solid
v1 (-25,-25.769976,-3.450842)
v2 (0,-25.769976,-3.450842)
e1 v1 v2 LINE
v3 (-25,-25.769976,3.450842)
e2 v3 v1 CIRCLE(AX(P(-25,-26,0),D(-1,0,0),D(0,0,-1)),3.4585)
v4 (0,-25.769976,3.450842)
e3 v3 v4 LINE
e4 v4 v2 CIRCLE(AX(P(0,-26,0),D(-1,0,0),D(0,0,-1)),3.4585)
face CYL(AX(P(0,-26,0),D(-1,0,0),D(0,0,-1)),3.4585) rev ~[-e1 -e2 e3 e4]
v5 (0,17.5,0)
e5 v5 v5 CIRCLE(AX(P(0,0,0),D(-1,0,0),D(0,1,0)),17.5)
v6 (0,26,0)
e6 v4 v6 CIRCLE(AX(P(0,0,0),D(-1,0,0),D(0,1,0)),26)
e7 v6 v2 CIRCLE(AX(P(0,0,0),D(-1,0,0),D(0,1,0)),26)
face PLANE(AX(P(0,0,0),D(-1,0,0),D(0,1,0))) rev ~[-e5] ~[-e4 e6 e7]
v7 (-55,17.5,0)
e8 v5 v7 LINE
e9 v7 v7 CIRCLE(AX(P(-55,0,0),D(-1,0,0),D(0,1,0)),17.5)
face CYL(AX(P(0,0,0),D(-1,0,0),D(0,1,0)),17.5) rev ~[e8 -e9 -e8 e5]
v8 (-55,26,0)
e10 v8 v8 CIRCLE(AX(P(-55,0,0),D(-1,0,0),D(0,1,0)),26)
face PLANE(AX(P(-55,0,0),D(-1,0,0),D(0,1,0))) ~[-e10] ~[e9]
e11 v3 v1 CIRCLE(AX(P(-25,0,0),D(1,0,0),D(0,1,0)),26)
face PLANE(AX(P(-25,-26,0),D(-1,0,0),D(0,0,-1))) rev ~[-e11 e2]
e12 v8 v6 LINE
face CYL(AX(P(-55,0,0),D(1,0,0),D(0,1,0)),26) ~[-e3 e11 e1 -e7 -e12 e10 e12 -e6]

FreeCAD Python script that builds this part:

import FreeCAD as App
import Part
import Sketcher

doc = App.newDocument("Part")
body = doc.addObject("PartDesign::Body", "Body")

sketch1 = doc.addObject("Sketcher::SketchObject", "Sketch")
body.addObject(sketch1)
sketch1.AttachmentSupport = (doc.XY_Plane, [""])
sketch1.MapMode = "FlatFace"
sketch1.addGeometry([
    Part.LineSegment(App.Vector(0, 26, 0), App.Vector(-55, 26, 0)),
    Part.LineSegment(App.Vector(-55, 26, 0), App.Vector(-55, 18, 0)),
    Part.LineSegment(App.Vector(-55, 18, 0), App.Vector(0, 18, 0)),
    Part.LineSegment(App.Vector(0, 18, 0), App.Vector(0, 26, 0)),
], False)
sketch1.addConstraint([
    Sketcher.Constraint("Coincident", 0, 2, 1, 1),
    Sketcher.Constraint("Coincident", 1, 2, 2, 1),
    Sketcher.Constraint("Coincident", 2, 2, 3, 1),
    Sketcher.Constraint("Coincident", 3, 2, 0, 1),
    Sketcher.Constraint("Horizontal", 0),
    Sketcher.Constraint("Vertical", 1),
    Sketcher.Constraint("Horizontal", 2),
    Sketcher.Constraint("Vertical", 3),
    Sketcher.Constraint("PointOnObject", 2, 2, -2),
    Sketcher.Constraint("DistanceX", 0, 2, 0, 1, 55.0),
    Sketcher.Constraint("DistanceY", 1, 2, 1, 1, 8.5),
    Sketcher.Constraint("DistanceY", -1, 1, 0, 2, 26.0),
])
revolution = doc.addObject("PartDesign::Revolution", "Revolution")
body.addObject(revolution)
revolution.Profile = sketch1
revolution.ReferenceAxis = (sketch1, ["H_Axis"])
revolution.Angle = 360

sketch2 = doc.addObject("Sketcher::SketchObject", "Sketch001")
body.addObject(sketch2)
sketch2.AttachmentSupport = (doc.YZ_Plane, [""])
sketch2.MapMode = "FlatFace"
sketch2.addGeometry(Part.Circle(App.Vector(-26, 0, 0), App.Vector(0, 0, 1), 3.5), False)
sketch2.addConstraint([
    Sketcher.Constraint("PointOnObject", 0, 3, -1),
    Sketcher.Constraint("Diameter", 0, 6.917),
    Sketcher.Constraint("DistanceX", 0, 3, -1, 1, 26.0),
])
doc.recompute()
hole = doc.addObject("PartDesign::Hole", "Hole")
body.addObject(hole)
hole.Profile = sketch2
hole.ThreadType = "None"
hole.Diameter = 6.917
hole.DepthType = "Dimension"
hole.Depth = 25
hole.DrillPoint = "Flat"

doc.recompute()
